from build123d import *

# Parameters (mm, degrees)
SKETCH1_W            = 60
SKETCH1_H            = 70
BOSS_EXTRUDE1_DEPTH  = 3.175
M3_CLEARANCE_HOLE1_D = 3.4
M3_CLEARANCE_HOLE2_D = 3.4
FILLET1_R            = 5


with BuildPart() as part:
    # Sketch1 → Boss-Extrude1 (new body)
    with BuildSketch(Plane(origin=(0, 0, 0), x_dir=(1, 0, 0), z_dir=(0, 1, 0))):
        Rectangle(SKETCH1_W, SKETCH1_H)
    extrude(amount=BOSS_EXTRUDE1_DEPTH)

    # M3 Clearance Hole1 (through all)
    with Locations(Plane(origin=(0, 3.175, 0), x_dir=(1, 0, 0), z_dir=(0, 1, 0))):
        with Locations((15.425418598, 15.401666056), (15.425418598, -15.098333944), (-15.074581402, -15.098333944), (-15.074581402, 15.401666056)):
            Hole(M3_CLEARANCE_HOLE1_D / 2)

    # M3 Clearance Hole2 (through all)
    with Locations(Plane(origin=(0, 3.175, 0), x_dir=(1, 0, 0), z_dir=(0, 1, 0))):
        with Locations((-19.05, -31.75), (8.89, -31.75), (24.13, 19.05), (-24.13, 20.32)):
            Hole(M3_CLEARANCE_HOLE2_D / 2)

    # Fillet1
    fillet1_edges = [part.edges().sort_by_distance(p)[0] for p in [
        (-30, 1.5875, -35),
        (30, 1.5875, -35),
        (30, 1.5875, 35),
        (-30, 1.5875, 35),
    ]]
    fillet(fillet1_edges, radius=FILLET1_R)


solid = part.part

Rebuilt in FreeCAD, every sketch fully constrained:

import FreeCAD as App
import Part
import Sketcher

V = App.Vector
Q = App.Units.Quantity


def edges_at(feature, points):
    """Names of the edges that pass closest to the given points."""
    edges = feature.Shape.Edges
    near = lambda p: min(range(len(edges)), key=lambda i: edges[i].distToShape(Part.Vertex(*p))[0])
    return sorted({f"Edge{near(p) + 1}" for p in points})

doc = App.newDocument("Part")
params = doc.addObject("Spreadsheet::Sheet", "Params")
for row, (alias, value) in enumerate([
    ("sketch1_width", "60 mm"),
    ("sketch1_height", "70 mm"),
    ("pad1_length", "3.175 mm"),
    ("sketch2_diameter", "3.4 mm"),
    ("hole_diameter", "3.4 mm"),
    ("sketch3_diameter", "3.4 mm"),
    ("hole2_diameter", "3.4 mm"),
    ("fillet_radius", "5 mm"),
], start=1):
    params.set(f"A{row}", alias)
    params.set(f"B{row}", "=" + value)
    params.setAlias(f"B{row}", alias)

body = doc.addObject("PartDesign::Body", "Body")

# Sketch on XZ plane
sketch1 = body.newObject("Sketcher::SketchObject", "Sketch")
sketch1.AttachmentSupport = (doc.getObject("XZ_Plane"), [""])
sketch1.MapMode = "FlatFace"
sketch1.addGeometry([
    Part.LineSegment(V(-30, -35, 0), V(-30, 35, 0)),
    Part.LineSegment(V(-30, 35, 0), V(30, 35, 0)),
    Part.LineSegment(V(30, 35, 0), V(30, -35, 0)),
    Part.LineSegment(V(30, -35, 0), V(-30, -35, 0)),
], False)
sketch1.addConstraint([
    Sketcher.Constraint("Coincident", 0, 2, 1, 1),
    Sketcher.Constraint("Coincident", 1, 2, 2, 1),
    Sketcher.Constraint("Coincident", 2, 2, 3, 1),
    Sketcher.Constraint("Coincident", 3, 2, 0, 1),
    Sketcher.Constraint("Vertical", 0),
    Sketcher.Constraint("Horizontal", 1),
    Sketcher.Constraint("Vertical", 2),
    Sketcher.Constraint("Horizontal", 3),
    Sketcher.Constraint("Symmetric", 0, 2, 2, 2, -1, 1),
    Sketcher.Constraint("DistanceX", 1, 1, 1, 2, Q("60 mm")),
    Sketcher.Constraint("DistanceY", 0, 1, 0, 2, Q("70 mm")),
])
sketch1.setExpression("Constraints[9]", "Params.sketch1_width")
sketch1.setExpression("Constraints[10]", "Params.sketch1_height")
pad1 = body.newObject("PartDesign::Pad", "Pad")
pad1.Profile = sketch1
pad1.setExpression("Length", "Params.pad1_length")
pad1.Reversed = True

# Sketch on XZ plane
sketch2 = body.newObject("Sketcher::SketchObject", "Sketch001")
sketch2.AttachmentSupport = (doc.getObject("XZ_Plane"), [""])
sketch2.MapMode = "FlatFace"
sketch2.AttachmentOffset = App.Placement(V(0, 0, -3.175), App.Rotation())
sketch2.addGeometry([
    Part.Circle(V(15.4, -15.4, 0), V(0, 0, 1), 1.7),
    Part.Circle(V(15.4, 15.1, 0), V(0, 0, 1), 1.7),
    Part.Circle(V(-15.1, 15.1, 0), V(0, 0, 1), 1.7),
    Part.Circle(V(-15.1, -15.4, 0), V(0, 0, 1), 1.7),
], False)
sketch2.addConstraint([
    Sketcher.Constraint("Equal", 0, 1),
    Sketcher.Constraint("Equal", 1, 2),
    Sketcher.Constraint("Equal", 2, 3),
    Sketcher.Constraint("Horizontal", 1, 3, 2, 3),
    Sketcher.Constraint("Horizontal", 0, 3, 3, 3),
    Sketcher.Constraint("Vertical", 0, 3, 1, 3),
    Sketcher.Constraint("Vertical", 2, 3, 3, 3),
    Sketcher.Constraint("Diameter", 0, Q("3.4 mm")),
    Sketcher.Constraint("DistanceY", 0, 3, 1, 3, Q("30.5 mm")),
    Sketcher.Constraint("DistanceX", 2, 3, 1, 3, Q("30.5 mm")),
    Sketcher.Constraint("DistanceX", -1, 1, 0, 3, Q("15.425419 mm")),
    Sketcher.Constraint("DistanceY", 0, 3, -1, 1, Q("15.401666 mm")),
])
sketch2.setExpression("Constraints[7]", "Params.sketch2_diameter")
doc.recompute()
hole = body.newObject("PartDesign::Hole", "Hole")
hole.Profile = sketch2
hole.ThreadType = "None"
hole.setExpression("Diameter", "Params.hole_diameter")
hole.DepthType = "ThroughAll"
hole.Reversed = True

# Sketch on XZ plane
sketch3 = body.newObject("Sketcher::SketchObject", "Sketch002")
sketch3.AttachmentSupport = (doc.getObject("XZ_Plane"), [""])
sketch3.MapMode = "FlatFace"
sketch3.AttachmentOffset = App.Placement(V(0, 0, -3.175), App.Rotation())
sketch3.addGeometry([
    Part.Circle(V(-19.1, 31.8, 0), V(0, 0, 1), 1.7),
    Part.Circle(V(8.9, 31.8, 0), V(0, 0, 1), 1.7),
    Part.Circle(V(24.1, -19.1, 0), V(0, 0, 1), 1.7),
    Part.Circle(V(-24.1, -20.3, 0), V(0, 0, 1), 1.7),
], False)
sketch3.addConstraint([
    Sketcher.Constraint("Equal", 0, 1),
    Sketcher.Constraint("Equal", 1, 2),
    Sketcher.Constraint("Equal", 2, 3),
    Sketcher.Constraint("Horizontal", 0, 3, 1, 3),
    Sketcher.Constraint("Diameter", 0, Q("3.4 mm")),
    Sketcher.Constraint("DistanceY", 2, 3, 1, 3, Q("50.8 mm")),
    Sketcher.Constraint("DistanceX", 0, 3, -1, 1, Q("19.05 mm")),
    Sketcher.Constraint("DistanceY", -1, 1, 0, 3, Q("31.75 mm")),
    Sketcher.Constraint("DistanceX", -1, 1, 1, 3, Q("8.89 mm")),
    Sketcher.Constraint("DistanceX", -1, 1, 2, 3, Q("24.13 mm")),
    Sketcher.Constraint("DistanceX", 3, 3, -1, 1, Q("24.13 mm")),
    Sketcher.Constraint("DistanceY", 3, 3, -1, 1, Q("20.32 mm")),
])
sketch3.setExpression("Constraints[4]", "Params.sketch3_diameter")
doc.recompute()
hole2 = body.newObject("PartDesign::Hole", "Hole001")
hole2.Profile = sketch3
hole2.ThreadType = "None"
hole2.setExpression("Diameter", "Params.hole2_diameter")
hole2.DepthType = "ThroughAll"
hole2.Reversed = True
doc.recompute()

fillet = body.newObject("PartDesign::Fillet", "Fillet")
fillet.Base = (hole2, edges_at(hole2, [
    (-30, 1.587, -35),
    (30, 1.587, -35),
    (30, 1.587, 35),
    (-30, 1.587, 35),
]))
fillet.setExpression("Radius", "Params.fillet_radius")

doc.recompute()
